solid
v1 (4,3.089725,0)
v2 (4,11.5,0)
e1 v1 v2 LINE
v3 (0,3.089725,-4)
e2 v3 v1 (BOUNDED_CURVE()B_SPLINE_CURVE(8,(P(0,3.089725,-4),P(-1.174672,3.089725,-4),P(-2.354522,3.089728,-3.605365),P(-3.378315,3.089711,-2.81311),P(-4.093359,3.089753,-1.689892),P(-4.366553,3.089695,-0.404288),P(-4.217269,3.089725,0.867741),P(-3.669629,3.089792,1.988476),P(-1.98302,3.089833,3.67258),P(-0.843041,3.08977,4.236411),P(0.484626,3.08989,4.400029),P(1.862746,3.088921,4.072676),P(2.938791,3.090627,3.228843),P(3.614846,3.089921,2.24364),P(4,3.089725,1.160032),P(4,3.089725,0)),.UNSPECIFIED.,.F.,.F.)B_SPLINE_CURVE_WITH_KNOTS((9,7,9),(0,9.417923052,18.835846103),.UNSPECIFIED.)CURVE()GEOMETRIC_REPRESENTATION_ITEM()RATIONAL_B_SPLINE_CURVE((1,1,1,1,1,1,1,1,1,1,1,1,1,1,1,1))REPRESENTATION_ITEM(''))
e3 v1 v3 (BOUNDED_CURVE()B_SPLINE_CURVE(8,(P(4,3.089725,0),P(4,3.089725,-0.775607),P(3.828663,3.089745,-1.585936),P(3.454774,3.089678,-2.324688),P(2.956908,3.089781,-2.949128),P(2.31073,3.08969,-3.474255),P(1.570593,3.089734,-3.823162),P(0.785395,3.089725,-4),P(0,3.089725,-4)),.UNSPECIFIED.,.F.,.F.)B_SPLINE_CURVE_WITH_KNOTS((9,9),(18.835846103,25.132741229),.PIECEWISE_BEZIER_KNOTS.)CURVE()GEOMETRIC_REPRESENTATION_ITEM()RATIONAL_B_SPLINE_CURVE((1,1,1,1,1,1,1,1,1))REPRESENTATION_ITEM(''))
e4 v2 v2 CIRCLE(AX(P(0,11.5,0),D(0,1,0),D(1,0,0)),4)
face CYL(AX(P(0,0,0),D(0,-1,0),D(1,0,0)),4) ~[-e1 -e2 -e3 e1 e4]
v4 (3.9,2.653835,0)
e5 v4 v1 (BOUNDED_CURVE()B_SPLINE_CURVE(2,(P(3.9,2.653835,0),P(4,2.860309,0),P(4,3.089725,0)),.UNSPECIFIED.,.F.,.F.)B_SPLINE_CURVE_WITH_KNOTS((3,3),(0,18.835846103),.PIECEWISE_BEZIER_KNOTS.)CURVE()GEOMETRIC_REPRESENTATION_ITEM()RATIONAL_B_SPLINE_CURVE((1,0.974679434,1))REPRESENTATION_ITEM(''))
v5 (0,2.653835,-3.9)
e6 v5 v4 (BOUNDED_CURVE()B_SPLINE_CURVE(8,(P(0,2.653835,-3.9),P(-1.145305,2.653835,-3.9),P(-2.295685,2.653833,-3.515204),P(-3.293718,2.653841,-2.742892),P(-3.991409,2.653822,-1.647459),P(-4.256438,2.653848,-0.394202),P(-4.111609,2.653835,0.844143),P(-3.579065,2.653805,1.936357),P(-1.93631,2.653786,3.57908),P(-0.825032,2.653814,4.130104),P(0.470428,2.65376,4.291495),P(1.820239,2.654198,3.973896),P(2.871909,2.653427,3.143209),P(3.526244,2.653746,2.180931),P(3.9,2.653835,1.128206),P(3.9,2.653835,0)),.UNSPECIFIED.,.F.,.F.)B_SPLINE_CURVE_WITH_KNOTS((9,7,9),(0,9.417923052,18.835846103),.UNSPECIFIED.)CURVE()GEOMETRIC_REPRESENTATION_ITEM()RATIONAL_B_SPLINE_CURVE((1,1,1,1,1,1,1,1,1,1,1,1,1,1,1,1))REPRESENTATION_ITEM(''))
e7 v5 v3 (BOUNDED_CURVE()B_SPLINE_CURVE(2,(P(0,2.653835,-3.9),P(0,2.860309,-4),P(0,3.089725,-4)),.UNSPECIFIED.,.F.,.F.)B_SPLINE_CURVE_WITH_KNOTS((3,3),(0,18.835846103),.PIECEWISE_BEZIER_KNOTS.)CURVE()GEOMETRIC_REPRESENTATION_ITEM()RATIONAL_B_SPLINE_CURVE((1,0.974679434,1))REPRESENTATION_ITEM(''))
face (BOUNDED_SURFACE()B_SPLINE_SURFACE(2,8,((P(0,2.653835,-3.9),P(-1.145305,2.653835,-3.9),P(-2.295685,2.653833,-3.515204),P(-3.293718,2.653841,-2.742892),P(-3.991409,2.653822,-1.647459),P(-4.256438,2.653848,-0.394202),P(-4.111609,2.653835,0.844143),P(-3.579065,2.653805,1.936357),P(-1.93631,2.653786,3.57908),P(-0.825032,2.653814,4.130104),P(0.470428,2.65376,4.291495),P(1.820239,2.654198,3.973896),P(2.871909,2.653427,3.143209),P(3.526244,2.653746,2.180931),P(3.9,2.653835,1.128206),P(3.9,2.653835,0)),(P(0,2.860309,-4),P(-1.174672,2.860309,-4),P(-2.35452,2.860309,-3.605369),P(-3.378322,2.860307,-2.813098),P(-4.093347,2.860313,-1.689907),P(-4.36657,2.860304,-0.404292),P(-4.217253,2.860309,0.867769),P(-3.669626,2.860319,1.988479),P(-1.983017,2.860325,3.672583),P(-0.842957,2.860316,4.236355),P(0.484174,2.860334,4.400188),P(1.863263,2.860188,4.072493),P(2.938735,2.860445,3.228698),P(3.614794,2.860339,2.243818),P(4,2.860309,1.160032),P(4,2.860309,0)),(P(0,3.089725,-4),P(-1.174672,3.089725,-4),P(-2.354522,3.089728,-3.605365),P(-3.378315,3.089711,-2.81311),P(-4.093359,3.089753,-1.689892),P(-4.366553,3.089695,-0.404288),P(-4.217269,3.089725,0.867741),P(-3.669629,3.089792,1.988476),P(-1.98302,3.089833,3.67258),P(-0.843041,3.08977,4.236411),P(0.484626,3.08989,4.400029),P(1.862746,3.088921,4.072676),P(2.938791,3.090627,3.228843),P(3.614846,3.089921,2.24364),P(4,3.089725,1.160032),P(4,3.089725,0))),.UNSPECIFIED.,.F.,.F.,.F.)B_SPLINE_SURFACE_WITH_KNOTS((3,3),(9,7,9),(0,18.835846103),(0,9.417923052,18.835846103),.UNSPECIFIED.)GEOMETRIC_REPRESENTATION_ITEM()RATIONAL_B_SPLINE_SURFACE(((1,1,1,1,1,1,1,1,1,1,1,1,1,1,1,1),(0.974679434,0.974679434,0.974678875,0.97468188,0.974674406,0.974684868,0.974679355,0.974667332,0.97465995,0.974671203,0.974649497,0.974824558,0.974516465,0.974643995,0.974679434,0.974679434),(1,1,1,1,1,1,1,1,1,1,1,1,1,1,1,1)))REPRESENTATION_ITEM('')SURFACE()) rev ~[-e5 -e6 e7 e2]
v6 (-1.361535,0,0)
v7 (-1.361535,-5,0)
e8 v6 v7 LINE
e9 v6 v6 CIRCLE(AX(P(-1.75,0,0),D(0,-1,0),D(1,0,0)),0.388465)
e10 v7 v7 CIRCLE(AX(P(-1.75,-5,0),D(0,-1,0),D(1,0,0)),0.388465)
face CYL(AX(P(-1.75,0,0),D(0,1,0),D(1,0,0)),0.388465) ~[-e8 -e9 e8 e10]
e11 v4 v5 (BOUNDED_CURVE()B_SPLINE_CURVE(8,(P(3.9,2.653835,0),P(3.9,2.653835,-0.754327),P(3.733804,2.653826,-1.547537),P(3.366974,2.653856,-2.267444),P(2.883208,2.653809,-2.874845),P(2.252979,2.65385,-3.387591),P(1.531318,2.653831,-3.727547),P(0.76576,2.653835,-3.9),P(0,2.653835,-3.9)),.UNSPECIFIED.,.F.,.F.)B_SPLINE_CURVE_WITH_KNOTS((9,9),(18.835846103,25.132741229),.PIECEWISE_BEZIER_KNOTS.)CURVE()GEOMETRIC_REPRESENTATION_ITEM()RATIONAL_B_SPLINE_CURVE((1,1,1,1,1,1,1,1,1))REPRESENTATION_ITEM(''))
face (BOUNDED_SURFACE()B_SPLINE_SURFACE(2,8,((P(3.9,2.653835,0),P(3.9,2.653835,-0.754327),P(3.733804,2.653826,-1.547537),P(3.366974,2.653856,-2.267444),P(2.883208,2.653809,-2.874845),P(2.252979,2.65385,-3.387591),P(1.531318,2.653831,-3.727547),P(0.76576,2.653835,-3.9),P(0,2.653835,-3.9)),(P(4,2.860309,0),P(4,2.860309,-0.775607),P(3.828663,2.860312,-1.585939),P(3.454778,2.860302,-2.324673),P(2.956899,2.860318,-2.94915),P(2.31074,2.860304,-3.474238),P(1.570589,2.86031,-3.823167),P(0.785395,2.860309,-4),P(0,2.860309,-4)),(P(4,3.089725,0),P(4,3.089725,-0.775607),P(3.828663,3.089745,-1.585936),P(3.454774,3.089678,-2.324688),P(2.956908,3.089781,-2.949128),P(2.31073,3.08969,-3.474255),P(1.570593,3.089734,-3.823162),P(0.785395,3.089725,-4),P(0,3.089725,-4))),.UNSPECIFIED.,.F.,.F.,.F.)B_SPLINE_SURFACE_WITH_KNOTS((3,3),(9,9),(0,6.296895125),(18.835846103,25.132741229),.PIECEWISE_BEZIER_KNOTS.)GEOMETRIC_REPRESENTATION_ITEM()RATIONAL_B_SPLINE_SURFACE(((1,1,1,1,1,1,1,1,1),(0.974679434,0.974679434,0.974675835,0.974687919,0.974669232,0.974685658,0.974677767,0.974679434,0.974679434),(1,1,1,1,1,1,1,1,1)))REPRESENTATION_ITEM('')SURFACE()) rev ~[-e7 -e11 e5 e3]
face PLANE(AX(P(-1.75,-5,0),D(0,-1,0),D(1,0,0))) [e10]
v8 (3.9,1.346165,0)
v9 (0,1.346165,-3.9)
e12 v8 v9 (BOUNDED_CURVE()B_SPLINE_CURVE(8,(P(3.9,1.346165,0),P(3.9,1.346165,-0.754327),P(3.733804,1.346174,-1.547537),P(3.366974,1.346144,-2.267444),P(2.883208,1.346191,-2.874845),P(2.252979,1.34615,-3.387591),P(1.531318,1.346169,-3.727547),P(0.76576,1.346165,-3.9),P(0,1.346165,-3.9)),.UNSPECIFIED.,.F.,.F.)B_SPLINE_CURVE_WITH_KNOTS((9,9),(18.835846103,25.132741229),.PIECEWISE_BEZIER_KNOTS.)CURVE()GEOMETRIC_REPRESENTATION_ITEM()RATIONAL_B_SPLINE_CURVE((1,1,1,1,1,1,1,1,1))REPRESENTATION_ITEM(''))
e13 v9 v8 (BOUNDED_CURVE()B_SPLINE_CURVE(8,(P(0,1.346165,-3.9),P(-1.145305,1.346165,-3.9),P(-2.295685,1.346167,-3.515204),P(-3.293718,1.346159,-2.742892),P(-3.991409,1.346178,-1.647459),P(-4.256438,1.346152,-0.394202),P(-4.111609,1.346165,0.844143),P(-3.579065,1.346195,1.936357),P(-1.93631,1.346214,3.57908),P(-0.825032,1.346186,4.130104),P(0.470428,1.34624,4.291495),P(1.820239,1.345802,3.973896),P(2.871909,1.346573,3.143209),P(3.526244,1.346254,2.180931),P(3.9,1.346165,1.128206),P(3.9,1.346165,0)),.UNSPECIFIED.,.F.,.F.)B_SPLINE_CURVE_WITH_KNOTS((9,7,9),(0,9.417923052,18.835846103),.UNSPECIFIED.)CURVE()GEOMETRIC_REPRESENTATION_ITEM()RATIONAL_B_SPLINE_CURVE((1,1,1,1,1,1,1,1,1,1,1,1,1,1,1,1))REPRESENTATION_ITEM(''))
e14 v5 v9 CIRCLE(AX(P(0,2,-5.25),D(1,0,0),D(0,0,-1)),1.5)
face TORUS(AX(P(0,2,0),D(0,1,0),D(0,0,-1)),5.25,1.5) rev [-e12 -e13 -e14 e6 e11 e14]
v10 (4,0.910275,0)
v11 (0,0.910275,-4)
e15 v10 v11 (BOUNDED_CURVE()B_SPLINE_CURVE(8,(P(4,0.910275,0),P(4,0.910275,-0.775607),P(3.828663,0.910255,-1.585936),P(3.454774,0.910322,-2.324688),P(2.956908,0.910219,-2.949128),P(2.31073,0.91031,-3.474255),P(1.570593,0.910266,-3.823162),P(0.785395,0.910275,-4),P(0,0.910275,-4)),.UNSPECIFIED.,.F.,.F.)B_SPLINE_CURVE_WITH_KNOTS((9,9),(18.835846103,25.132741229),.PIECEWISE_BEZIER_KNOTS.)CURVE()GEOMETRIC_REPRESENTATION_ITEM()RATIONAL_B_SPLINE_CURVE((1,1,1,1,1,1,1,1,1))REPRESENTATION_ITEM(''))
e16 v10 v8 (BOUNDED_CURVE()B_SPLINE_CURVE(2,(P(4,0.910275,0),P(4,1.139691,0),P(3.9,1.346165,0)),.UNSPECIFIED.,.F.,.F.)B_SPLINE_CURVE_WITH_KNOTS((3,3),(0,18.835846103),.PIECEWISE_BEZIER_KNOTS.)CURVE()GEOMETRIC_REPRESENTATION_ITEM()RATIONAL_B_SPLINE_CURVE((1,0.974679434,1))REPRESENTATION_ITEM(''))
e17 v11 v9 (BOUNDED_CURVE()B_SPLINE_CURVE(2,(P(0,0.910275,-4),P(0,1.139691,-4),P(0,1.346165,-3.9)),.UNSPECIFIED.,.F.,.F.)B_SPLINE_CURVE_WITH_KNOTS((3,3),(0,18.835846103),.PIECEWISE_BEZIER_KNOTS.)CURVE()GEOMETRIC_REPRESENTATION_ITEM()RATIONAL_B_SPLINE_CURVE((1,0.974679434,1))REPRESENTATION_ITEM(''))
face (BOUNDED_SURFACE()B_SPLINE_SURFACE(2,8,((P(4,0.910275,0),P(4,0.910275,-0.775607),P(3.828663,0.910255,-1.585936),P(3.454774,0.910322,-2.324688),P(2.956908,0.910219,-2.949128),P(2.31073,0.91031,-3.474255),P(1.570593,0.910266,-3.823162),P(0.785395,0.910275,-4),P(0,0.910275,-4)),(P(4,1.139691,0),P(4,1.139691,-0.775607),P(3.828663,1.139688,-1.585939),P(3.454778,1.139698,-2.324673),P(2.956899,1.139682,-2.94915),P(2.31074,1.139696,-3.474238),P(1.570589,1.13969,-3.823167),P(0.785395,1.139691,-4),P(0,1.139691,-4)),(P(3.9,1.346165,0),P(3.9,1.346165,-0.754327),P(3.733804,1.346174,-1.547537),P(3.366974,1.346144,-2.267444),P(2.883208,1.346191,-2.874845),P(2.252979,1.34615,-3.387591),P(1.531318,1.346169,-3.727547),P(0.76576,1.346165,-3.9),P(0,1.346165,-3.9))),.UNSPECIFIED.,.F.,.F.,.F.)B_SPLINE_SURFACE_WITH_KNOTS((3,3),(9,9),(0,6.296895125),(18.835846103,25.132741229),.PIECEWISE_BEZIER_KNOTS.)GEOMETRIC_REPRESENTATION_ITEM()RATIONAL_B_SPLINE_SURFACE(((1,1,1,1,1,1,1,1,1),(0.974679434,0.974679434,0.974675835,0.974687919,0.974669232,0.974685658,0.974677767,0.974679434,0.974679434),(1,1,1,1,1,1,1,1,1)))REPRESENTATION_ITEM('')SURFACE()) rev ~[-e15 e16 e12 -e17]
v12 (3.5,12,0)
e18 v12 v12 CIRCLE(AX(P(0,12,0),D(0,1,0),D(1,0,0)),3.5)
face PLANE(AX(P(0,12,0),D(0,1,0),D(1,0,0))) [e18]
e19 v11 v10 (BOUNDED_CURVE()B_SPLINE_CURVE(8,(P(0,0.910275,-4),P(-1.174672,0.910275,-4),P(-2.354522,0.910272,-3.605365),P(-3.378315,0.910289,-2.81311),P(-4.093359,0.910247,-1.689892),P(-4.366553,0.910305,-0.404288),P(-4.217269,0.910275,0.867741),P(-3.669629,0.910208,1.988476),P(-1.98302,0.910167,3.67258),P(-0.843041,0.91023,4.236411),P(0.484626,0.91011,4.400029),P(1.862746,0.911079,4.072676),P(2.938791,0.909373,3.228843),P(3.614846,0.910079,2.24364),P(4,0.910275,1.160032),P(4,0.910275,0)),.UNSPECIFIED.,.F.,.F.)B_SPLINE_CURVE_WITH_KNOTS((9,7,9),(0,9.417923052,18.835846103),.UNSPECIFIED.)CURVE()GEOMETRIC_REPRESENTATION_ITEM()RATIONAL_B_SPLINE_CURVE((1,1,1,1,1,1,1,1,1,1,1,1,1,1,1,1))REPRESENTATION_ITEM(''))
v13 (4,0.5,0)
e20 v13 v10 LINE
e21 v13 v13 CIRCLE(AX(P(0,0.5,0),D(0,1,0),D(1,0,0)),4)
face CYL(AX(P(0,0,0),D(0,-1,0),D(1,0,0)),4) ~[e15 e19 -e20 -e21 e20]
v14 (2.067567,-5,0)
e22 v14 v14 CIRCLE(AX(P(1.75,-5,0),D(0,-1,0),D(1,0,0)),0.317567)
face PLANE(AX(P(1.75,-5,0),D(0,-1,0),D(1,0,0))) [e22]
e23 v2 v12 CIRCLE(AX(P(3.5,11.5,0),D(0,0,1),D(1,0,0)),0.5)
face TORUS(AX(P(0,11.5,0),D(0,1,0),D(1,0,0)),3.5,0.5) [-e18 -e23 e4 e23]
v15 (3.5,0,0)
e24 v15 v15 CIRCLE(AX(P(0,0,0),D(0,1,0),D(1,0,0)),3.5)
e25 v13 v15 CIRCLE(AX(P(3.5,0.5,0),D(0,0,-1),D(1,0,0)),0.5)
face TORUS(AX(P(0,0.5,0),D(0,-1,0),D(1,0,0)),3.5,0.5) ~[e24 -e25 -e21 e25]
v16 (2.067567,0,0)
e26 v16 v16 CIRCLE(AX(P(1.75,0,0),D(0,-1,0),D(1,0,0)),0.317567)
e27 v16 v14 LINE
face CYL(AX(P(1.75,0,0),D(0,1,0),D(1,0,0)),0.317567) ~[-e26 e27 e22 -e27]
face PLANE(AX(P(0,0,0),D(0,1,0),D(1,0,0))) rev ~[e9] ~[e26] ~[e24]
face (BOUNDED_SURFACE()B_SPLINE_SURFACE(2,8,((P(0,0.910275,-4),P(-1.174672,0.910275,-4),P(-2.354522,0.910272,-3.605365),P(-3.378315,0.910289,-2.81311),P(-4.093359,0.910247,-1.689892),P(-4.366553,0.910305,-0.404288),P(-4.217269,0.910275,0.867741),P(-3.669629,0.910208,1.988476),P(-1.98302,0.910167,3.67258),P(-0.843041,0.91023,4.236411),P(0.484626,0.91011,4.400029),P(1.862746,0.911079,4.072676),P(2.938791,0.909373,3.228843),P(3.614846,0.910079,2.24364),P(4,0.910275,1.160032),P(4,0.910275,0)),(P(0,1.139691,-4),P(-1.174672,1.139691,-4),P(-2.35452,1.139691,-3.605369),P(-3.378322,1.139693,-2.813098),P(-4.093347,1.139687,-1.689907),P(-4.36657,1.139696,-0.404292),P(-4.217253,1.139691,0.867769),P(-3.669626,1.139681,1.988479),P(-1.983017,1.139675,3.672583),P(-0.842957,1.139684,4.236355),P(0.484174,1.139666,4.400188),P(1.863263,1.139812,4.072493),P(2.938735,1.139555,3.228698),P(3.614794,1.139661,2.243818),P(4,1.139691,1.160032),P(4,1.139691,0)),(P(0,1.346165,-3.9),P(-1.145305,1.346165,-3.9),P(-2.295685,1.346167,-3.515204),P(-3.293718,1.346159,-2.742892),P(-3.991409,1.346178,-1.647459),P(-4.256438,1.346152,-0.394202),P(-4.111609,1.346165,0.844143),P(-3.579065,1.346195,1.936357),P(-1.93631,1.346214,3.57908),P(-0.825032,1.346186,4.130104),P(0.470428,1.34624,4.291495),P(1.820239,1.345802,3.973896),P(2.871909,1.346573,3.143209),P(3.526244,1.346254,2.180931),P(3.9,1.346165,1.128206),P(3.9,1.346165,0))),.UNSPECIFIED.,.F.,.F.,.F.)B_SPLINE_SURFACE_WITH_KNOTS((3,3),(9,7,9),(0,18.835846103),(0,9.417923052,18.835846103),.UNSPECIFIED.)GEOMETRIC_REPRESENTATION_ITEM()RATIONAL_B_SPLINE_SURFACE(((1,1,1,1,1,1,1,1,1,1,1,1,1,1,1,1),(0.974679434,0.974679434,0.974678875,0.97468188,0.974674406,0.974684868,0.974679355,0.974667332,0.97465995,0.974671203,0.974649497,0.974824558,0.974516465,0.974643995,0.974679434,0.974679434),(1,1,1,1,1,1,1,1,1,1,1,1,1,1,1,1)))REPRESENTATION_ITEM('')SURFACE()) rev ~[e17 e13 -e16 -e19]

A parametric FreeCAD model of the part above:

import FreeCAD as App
import Part
import Sketcher


def edges_at(feature, points):
    """Names of the edges that pass closest to the given points."""
    edges = feature.Shape.Edges
    near = lambda p: min(range(len(edges)), key=lambda i: edges[i].distToShape(Part.Vertex(*p))[0])
    return sorted({f"Edge{near(p) + 1}" for p in points})

doc = App.newDocument("Part")
params = doc.addObject("Spreadsheet::Sheet", "Params")
for row, (alias, value) in enumerate([
    ("sketch1_diameter", "8 mm"),
    ("pad1_length", "12 mm"),
    ("pad2_length", "5 mm"),
    ("sketch3_diameter", "3 mm"),
    ("groove_angle", "360 deg"),
    ("fillet_radius", "1 mm"),
    ("fillet2_radius", "0.5 mm"),
    ("fillet3_radius", "0.5 mm"),
], start=1):
    params.set(f"A{row}", alias)
    params.set(f"B{row}", "=" + value)
    params.setAlias(f"B{row}", alias)

body = doc.addObject("PartDesign::Body", "Body")

sketch1 = body.newObject("Sketcher::SketchObject", "Sketch")
sketch1.AttachmentSupport = (doc.getObject("XZ_Plane"), [""])
sketch1.MapMode = "FlatFace"
sketch1.addGeometry(Part.Circle(App.Vector(0, 0, 0), App.Vector(0, 0, 1), 4), False)
sketch1.addConstraint([
    Sketcher.Constraint("Coincident", 0, 3, -1, 1),
    Sketcher.Constraint("Diameter", 0, 8.0),
])
sketch1.setExpression("Constraints[1]", "Params.sketch1_diameter")
pad1 = body.newObject("PartDesign::Pad", "Pad")
pad1.Profile = sketch1
pad1.setExpression("Length", "Params.pad1_length")
pad1.Reversed = True

sketch2 = body.newObject("Sketcher::SketchObject", "Sketch001")
sketch2.AttachmentSupport = (doc.getObject("XZ_Plane"), [""])
sketch2.MapMode = "FlatFace"
sketch2.addGeometry([
    Part.Circle(App.Vector(1.75, 0, 0), App.Vector(0, 0, 1), 0.32),
    Part.Circle(App.Vector(-1.75, 0, 0), App.Vector(0, 0, 1), 0.39),
], False)
sketch2.addConstraint([
    Sketcher.Constraint("Symmetric", 0, 3, 1, 3, -1, 1),
    Sketcher.Constraint("PointOnObject", 0, 3, -1),
    Sketcher.Constraint("DistanceX", 1, 3, 0, 3, 3.5),
    Sketcher.Constraint("Diameter", 1, 0.776929),
    Sketcher.Constraint("Diameter", 0, 0.635133),
])
pad2 = body.newObject("PartDesign::Pad", "Pad001")
pad2.Profile = sketch2
pad2.setExpression("Length", "Params.pad2_length")

sketch3 = body.newObject("Sketcher::SketchObject", "Sketch002")
sketch3.AttachmentSupport = (doc.getObject("YZ_Plane"), [""])
sketch3.MapMode = "FlatFace"
sketch3.addGeometry(Part.Circle(App.Vector(2, -5.2, 0), App.Vector(0, 0, 1), 1.5), False)
sketch3.addConstraint([
    Sketcher.Constraint("Diameter", 0, 3.0),
    Sketcher.Constraint("DistanceX", -1, 1, 0, 3, 2.0),
    Sketcher.Constraint("DistanceY", 0, 3, -1, 1, 5.25),
])
sketch3.setExpression("Constraints[0]", "Params.sketch3_diameter")
groove = body.newObject("PartDesign::Groove", "Groove")
groove.Profile = sketch3
groove.ReferenceAxis = (sketch3, ["H_Axis"])
groove.setExpression("Angle", "Params.groove_angle")
doc.recompute()

fillet = body.newObject("PartDesign::Fillet", "Fillet")
fillet.Base = (groove, edges_at(groove, [(-2.828, 2.829, 2.828), (-2.828, 1.171, 2.828)]))
fillet.setExpression("Radius", "Params.fillet_radius")
doc.recompute()

fillet2 = body.newObject("PartDesign::Fillet", "Fillet001")
fillet2.Base = (fillet, edges_at(fillet, [(-4, 12, 0)]))
fillet2.setExpression("Radius", "Params.fillet2_radius")
doc.recompute()

fillet3 = body.newObject("PartDesign::Fillet", "Fillet002")
fillet3.Base = (fillet2, edges_at(fillet2, [(-4, 0, 0)]))
fillet3.setExpression("Radius", "Params.fillet3_radius")

doc.recompute()
